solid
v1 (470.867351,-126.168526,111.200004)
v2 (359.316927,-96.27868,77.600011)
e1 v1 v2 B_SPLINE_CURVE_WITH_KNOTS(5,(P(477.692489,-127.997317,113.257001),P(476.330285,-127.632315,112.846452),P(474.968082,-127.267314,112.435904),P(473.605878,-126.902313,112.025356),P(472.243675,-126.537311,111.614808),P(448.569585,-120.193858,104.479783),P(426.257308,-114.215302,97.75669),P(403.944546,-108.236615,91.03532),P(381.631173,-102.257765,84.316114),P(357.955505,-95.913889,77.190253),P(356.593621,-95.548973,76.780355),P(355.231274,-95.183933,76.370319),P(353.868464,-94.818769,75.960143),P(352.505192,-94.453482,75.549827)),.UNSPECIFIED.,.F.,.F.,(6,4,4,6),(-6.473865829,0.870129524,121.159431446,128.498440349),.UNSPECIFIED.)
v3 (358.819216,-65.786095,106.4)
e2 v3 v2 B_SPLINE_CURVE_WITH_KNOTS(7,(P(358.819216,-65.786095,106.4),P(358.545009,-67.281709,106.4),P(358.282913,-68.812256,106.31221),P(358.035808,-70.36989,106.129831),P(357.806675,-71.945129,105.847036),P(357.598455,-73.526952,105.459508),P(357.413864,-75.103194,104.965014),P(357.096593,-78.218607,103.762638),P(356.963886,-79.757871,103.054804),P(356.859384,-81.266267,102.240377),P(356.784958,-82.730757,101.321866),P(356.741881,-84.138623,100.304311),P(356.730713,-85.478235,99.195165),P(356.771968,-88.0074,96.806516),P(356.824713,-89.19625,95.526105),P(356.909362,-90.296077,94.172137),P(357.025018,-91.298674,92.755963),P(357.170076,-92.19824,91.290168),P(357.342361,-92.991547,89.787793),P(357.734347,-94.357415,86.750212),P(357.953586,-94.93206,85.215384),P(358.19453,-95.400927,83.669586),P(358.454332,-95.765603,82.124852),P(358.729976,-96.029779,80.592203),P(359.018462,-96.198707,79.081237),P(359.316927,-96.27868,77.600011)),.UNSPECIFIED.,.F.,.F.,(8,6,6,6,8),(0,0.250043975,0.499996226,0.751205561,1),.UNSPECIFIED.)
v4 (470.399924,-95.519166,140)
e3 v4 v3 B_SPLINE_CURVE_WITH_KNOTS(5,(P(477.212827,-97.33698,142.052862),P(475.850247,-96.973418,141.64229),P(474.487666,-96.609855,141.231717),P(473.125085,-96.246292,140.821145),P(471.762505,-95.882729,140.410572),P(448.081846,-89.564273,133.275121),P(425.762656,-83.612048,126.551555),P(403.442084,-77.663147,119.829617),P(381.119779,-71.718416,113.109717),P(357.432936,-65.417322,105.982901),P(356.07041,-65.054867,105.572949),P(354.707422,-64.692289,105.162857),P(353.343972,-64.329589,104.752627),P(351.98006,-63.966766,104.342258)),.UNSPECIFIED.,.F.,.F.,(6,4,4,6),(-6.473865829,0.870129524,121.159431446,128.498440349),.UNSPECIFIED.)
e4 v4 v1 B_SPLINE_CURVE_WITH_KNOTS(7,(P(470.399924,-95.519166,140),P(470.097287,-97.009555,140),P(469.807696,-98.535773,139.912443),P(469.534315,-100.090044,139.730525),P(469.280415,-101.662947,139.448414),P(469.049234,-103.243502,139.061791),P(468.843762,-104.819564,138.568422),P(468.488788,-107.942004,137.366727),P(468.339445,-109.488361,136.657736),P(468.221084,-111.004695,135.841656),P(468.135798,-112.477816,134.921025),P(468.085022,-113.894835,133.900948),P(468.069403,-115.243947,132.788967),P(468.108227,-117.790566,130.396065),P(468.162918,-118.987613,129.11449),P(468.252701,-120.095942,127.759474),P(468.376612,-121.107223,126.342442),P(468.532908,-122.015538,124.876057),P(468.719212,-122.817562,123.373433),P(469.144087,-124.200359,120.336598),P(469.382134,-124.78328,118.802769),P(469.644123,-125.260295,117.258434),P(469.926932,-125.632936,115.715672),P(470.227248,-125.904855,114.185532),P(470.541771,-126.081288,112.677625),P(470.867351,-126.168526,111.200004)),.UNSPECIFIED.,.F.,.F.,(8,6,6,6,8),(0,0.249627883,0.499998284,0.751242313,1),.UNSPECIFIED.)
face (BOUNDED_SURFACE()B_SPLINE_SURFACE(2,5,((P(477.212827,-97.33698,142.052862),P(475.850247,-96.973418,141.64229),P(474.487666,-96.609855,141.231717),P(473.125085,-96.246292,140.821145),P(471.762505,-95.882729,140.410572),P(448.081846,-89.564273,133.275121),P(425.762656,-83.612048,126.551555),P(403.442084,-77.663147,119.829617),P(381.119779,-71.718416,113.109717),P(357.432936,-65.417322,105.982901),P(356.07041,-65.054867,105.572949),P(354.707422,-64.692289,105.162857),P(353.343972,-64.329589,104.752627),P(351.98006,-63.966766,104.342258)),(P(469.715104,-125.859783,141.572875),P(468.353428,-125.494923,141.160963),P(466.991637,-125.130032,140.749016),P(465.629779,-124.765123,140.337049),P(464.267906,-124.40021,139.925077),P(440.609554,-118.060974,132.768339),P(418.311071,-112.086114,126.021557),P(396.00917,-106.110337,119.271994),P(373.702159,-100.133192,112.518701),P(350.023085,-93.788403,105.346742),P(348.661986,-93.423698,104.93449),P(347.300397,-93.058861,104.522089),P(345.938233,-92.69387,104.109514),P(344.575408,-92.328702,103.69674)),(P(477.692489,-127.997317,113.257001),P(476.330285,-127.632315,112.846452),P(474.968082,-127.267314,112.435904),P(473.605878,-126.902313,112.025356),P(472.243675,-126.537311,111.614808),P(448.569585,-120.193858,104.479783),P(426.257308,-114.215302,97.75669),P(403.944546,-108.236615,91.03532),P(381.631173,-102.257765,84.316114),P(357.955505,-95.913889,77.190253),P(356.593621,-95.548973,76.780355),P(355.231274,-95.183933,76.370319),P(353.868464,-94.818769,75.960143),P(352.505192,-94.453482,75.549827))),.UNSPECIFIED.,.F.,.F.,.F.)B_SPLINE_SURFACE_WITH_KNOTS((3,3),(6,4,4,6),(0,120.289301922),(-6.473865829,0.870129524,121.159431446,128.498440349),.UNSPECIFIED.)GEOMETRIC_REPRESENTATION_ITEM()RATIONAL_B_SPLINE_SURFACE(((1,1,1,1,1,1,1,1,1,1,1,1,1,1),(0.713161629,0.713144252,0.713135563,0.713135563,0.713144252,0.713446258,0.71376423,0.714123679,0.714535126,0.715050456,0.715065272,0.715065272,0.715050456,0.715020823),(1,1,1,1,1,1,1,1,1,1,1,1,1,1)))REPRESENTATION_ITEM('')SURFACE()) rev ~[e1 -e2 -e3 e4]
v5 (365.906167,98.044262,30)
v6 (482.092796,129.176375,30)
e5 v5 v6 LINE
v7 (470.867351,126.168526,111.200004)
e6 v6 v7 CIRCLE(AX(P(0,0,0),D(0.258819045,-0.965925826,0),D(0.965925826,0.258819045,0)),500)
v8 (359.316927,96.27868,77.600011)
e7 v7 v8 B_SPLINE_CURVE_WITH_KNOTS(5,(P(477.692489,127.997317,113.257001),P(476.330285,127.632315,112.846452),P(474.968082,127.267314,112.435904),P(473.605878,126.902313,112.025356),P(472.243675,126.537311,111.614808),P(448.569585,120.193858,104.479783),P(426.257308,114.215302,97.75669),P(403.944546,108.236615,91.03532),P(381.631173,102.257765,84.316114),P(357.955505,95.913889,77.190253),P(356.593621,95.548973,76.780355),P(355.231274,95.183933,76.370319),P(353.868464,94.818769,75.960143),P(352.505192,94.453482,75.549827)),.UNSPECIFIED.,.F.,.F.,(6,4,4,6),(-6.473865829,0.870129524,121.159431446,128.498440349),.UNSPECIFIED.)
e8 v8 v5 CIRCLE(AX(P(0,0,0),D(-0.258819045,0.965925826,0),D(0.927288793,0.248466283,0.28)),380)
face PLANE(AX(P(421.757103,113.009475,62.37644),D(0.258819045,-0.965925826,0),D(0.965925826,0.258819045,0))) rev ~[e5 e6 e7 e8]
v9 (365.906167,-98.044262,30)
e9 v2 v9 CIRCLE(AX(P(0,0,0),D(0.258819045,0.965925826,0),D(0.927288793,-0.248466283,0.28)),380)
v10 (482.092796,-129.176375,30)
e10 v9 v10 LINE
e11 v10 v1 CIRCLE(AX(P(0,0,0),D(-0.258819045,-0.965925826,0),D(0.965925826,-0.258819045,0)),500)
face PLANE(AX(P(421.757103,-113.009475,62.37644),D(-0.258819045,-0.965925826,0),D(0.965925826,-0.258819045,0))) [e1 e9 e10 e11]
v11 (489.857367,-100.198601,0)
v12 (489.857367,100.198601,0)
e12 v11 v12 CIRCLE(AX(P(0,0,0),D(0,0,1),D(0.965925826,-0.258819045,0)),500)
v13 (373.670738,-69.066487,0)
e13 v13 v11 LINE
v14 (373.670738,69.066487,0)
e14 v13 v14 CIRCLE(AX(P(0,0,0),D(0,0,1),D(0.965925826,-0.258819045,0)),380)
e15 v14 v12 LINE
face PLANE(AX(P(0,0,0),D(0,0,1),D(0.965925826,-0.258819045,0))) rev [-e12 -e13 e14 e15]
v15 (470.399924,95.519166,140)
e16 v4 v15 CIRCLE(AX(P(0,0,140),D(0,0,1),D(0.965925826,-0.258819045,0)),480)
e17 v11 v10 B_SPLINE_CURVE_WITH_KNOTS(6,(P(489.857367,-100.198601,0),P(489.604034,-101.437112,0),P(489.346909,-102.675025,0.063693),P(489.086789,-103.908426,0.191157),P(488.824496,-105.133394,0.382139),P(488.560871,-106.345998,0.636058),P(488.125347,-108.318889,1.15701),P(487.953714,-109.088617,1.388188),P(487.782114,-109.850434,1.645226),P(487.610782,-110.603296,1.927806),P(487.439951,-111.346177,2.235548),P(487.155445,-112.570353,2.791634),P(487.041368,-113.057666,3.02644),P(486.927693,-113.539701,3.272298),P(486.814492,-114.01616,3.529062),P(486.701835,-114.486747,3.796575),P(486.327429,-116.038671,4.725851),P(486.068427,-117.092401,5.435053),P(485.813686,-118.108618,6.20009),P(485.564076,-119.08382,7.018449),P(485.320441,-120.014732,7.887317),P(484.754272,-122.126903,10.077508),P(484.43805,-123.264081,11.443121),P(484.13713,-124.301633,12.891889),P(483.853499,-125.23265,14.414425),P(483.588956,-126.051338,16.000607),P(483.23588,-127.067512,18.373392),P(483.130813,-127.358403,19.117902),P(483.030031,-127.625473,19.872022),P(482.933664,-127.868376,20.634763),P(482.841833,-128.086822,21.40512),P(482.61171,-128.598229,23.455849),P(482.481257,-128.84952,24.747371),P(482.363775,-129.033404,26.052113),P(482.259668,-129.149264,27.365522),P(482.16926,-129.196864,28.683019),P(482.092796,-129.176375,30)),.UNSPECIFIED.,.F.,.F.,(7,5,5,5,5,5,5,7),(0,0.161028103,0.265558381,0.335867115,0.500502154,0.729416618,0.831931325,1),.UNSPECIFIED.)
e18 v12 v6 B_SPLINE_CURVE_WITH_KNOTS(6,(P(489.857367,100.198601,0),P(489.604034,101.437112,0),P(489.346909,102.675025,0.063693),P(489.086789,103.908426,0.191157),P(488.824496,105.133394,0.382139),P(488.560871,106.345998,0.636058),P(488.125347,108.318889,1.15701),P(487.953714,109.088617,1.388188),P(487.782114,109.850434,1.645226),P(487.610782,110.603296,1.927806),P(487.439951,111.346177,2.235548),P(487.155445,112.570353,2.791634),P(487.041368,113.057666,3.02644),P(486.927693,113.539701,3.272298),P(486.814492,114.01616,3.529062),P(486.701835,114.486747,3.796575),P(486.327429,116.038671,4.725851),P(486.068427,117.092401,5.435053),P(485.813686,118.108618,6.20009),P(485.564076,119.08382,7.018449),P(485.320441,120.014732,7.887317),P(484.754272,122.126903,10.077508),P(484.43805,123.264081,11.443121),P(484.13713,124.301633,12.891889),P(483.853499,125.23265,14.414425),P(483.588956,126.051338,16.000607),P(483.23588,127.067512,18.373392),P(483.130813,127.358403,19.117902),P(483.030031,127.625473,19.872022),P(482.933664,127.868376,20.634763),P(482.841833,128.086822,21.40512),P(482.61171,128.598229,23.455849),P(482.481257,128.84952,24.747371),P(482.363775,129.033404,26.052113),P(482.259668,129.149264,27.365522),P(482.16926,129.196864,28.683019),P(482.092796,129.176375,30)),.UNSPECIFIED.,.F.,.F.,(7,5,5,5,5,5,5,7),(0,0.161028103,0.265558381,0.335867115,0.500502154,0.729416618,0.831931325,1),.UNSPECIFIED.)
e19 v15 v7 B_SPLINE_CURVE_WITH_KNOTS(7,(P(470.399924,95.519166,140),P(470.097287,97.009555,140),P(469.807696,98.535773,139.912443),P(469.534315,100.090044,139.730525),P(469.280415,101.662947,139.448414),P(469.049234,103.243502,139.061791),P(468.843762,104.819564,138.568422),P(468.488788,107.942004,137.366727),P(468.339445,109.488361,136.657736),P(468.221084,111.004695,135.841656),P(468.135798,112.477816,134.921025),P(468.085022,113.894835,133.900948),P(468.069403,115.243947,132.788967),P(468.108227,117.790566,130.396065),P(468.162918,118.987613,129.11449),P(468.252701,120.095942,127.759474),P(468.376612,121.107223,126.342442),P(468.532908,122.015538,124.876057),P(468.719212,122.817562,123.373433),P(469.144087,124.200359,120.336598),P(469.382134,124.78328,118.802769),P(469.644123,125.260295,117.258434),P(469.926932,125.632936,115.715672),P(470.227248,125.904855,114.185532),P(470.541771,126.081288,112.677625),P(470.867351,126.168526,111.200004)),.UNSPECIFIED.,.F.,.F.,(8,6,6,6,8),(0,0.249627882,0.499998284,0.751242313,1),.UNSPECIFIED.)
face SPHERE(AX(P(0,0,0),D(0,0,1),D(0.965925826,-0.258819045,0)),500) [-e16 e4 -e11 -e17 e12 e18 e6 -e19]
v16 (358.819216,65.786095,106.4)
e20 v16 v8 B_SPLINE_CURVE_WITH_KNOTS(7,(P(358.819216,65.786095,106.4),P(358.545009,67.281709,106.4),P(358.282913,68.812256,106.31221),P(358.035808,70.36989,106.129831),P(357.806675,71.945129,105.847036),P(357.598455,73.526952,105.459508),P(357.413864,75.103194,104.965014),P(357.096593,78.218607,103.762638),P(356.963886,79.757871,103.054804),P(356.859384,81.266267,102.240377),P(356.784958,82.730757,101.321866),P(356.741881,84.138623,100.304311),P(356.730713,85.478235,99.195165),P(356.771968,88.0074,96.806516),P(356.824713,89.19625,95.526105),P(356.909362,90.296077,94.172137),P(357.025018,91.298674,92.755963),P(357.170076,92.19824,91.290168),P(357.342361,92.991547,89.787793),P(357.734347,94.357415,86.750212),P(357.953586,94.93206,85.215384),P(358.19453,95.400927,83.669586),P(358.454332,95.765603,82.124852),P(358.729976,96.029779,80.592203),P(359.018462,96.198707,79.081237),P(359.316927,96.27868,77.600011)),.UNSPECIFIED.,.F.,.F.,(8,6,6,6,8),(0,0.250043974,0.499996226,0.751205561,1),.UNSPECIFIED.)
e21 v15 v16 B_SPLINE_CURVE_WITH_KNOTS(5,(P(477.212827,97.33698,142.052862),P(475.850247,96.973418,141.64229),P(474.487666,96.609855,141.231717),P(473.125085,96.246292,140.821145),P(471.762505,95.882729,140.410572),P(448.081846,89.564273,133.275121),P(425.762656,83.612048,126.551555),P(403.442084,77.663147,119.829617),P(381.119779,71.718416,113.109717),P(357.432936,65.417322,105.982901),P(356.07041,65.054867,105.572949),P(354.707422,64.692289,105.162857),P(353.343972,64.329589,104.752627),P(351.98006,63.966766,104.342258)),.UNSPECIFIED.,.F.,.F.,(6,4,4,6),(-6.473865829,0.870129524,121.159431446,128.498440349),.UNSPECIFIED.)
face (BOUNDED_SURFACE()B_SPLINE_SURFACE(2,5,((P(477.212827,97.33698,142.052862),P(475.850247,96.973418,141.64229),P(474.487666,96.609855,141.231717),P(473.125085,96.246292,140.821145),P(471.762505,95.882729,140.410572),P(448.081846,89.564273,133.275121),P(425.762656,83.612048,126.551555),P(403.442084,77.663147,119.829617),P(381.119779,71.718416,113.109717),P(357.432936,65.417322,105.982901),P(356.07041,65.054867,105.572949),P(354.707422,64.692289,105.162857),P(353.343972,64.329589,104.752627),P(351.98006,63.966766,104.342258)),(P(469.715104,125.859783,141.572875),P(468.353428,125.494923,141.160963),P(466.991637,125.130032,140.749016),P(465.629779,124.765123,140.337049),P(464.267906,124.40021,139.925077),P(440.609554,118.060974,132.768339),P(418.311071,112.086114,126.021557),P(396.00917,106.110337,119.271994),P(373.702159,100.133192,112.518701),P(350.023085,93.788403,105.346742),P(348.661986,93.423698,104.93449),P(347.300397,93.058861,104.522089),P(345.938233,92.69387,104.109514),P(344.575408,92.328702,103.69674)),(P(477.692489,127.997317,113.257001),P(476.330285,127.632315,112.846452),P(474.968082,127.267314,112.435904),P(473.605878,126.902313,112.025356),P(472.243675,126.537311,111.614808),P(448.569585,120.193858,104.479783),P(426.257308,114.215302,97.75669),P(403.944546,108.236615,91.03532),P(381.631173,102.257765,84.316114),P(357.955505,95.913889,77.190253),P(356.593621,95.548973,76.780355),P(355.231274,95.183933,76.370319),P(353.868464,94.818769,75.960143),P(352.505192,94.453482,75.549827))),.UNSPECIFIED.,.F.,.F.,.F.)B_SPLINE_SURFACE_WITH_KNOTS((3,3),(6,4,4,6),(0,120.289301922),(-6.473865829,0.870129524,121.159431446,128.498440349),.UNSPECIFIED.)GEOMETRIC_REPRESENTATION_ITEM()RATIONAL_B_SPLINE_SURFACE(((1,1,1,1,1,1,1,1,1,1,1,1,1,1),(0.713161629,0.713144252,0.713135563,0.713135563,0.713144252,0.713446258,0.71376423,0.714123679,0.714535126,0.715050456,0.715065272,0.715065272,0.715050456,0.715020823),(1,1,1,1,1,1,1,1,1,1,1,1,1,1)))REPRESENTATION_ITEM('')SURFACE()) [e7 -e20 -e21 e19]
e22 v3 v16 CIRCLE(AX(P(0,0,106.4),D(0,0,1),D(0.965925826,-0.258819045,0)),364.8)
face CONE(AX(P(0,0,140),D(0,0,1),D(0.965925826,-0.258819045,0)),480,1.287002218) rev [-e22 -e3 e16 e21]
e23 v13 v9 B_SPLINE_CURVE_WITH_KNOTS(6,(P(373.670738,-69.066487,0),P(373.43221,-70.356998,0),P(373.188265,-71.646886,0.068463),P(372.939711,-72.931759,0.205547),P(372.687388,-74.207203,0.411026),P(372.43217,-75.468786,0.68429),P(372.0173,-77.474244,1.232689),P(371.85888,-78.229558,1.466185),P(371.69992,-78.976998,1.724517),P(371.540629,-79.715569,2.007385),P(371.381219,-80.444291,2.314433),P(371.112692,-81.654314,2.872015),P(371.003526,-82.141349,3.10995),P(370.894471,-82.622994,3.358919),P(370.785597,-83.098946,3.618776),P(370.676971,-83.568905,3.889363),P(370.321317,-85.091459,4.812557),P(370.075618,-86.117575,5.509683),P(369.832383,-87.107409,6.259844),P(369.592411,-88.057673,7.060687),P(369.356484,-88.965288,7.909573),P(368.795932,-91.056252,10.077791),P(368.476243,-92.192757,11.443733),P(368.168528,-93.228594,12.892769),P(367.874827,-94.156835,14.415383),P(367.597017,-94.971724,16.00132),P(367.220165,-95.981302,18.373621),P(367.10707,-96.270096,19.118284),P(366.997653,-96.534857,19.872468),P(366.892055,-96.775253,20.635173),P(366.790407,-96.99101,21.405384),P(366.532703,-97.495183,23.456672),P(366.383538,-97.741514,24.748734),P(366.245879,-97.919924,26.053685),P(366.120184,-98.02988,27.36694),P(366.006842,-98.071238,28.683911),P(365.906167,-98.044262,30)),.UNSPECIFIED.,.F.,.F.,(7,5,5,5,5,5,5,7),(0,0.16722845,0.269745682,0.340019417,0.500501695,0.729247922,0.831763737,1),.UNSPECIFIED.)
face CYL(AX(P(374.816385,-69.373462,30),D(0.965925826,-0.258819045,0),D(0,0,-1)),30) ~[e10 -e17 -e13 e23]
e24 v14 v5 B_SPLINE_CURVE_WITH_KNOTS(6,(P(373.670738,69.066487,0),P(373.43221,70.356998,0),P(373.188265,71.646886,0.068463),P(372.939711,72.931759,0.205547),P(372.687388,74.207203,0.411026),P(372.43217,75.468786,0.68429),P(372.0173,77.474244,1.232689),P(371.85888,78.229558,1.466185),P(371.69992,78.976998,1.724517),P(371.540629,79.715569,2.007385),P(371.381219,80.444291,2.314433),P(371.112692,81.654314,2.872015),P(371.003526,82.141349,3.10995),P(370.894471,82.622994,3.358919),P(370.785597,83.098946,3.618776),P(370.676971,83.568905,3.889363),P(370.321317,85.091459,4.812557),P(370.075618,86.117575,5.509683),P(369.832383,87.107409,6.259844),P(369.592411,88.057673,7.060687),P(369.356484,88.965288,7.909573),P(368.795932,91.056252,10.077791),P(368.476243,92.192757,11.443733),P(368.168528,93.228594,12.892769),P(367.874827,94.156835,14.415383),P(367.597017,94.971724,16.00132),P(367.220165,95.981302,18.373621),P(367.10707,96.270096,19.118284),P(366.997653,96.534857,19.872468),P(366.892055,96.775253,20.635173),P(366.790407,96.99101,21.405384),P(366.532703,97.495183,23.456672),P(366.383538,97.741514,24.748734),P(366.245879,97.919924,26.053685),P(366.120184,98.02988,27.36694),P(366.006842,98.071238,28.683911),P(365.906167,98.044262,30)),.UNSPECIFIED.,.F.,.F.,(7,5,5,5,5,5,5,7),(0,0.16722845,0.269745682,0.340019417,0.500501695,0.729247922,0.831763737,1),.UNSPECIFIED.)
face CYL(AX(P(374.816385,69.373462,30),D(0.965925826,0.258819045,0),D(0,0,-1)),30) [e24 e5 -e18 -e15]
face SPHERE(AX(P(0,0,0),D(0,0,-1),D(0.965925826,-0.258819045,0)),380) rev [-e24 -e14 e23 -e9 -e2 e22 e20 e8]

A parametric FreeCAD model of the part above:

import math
import FreeCAD as App
import Part
import Sketcher

V = App.Vector
Q = App.Units.Quantity


def edges_at(feature, points):
    """Names of the edges that pass closest to the given points."""
    edges = feature.Shape.Edges
    near = lambda p: min(range(len(edges)), key=lambda i: edges[i].distToShape(Part.Vertex(*p))[0])
    return sorted({f"Edge{near(p) + 1}" for p in points})

doc = App.newDocument("Part")
body = doc.addObject("PartDesign::Body", "Body")

# Sketch on an angled plane
sketch1 = body.newObject("Sketcher::SketchObject", "Sketch")
sketch1.Placement = App.Placement(V(0, 0, 0), App.Rotation(V(0.965925826, -0.258819045, 0), V(0, 0, 0.999999999), V(-0.258819045, -0.965925826, 0), "ZXY"))
sketch1.addGeometry(Part.LineSegment(V(380, 0, 0), V(500, 0, 0)), False)
sketch1.addGeometry(Part.ArcOfCircle(Part.Circle(V(0, 0, 0), V(0, 0, 1), 500), math.radians(0), math.radians(16.260205)), False)
sketch1.addGeometry(Part.LineSegment(V(480, 140, 0), V(364.8, 106.4, 0)), False)
sketch1.addGeometry(Part.ArcOfCircle(Part.Circle(V(0, 0, 0), V(0, 0, 1), 380), math.radians(0), math.radians(16.260205)), False)
sketch1.addConstraint(Sketcher.Constraint("Coincident", 0, 2, 1, 1))
sketch1.addConstraint(Sketcher.Constraint("Coincident", 1, 2, 2, 1))
sketch1.addConstraint(Sketcher.Constraint("Coincident", 2, 2, 3, 2))
sketch1.addConstraint(Sketcher.Constraint("Coincident", 3, 1, 0, 1))
sketch1.addConstraint(Sketcher.Constraint("Horizontal", 0))
sketch1.addConstraint(Sketcher.Constraint("Coincident", 1, 3, -1, 1))
sketch1.addConstraint(Sketcher.Constraint("Coincident", 3, 3, -1, 1))
sketch1.addConstraint(Sketcher.Constraint("PointOnObject", 0, 2, -1))
sketch1.addConstraint(Sketcher.Constraint("Radius", 1, 500.0))
sketch1.addConstraint(Sketcher.Constraint("Radius", 3, 380.0))
sketch1.addConstraint(Sketcher.Constraint("DistanceX", -1, 1, 2, 2, 364.8))
sketch1.addConstraint(Sketcher.Constraint("Angle", 2, Q("-163.739795 deg")))
revolution = body.newObject("PartDesign::Revolution", "Revolution")
revolution.Profile = sketch1
revolution.ReferenceAxis = (sketch1, ["V_Axis"])
revolution.Angle = 30
doc.recompute()

fillet = body.newObject("PartDesign::Fillet", "Fillet")
fillet.Base = (revolution, edges_at(revolution, [
    (408.007, -109.325, 123.2),
    (425.007, -113.88, 0),
    (425.007, 113.88, 0),
    (408.007, 109.325, 123.2),
]))
fillet.Radius = 30

doc.recompute()
